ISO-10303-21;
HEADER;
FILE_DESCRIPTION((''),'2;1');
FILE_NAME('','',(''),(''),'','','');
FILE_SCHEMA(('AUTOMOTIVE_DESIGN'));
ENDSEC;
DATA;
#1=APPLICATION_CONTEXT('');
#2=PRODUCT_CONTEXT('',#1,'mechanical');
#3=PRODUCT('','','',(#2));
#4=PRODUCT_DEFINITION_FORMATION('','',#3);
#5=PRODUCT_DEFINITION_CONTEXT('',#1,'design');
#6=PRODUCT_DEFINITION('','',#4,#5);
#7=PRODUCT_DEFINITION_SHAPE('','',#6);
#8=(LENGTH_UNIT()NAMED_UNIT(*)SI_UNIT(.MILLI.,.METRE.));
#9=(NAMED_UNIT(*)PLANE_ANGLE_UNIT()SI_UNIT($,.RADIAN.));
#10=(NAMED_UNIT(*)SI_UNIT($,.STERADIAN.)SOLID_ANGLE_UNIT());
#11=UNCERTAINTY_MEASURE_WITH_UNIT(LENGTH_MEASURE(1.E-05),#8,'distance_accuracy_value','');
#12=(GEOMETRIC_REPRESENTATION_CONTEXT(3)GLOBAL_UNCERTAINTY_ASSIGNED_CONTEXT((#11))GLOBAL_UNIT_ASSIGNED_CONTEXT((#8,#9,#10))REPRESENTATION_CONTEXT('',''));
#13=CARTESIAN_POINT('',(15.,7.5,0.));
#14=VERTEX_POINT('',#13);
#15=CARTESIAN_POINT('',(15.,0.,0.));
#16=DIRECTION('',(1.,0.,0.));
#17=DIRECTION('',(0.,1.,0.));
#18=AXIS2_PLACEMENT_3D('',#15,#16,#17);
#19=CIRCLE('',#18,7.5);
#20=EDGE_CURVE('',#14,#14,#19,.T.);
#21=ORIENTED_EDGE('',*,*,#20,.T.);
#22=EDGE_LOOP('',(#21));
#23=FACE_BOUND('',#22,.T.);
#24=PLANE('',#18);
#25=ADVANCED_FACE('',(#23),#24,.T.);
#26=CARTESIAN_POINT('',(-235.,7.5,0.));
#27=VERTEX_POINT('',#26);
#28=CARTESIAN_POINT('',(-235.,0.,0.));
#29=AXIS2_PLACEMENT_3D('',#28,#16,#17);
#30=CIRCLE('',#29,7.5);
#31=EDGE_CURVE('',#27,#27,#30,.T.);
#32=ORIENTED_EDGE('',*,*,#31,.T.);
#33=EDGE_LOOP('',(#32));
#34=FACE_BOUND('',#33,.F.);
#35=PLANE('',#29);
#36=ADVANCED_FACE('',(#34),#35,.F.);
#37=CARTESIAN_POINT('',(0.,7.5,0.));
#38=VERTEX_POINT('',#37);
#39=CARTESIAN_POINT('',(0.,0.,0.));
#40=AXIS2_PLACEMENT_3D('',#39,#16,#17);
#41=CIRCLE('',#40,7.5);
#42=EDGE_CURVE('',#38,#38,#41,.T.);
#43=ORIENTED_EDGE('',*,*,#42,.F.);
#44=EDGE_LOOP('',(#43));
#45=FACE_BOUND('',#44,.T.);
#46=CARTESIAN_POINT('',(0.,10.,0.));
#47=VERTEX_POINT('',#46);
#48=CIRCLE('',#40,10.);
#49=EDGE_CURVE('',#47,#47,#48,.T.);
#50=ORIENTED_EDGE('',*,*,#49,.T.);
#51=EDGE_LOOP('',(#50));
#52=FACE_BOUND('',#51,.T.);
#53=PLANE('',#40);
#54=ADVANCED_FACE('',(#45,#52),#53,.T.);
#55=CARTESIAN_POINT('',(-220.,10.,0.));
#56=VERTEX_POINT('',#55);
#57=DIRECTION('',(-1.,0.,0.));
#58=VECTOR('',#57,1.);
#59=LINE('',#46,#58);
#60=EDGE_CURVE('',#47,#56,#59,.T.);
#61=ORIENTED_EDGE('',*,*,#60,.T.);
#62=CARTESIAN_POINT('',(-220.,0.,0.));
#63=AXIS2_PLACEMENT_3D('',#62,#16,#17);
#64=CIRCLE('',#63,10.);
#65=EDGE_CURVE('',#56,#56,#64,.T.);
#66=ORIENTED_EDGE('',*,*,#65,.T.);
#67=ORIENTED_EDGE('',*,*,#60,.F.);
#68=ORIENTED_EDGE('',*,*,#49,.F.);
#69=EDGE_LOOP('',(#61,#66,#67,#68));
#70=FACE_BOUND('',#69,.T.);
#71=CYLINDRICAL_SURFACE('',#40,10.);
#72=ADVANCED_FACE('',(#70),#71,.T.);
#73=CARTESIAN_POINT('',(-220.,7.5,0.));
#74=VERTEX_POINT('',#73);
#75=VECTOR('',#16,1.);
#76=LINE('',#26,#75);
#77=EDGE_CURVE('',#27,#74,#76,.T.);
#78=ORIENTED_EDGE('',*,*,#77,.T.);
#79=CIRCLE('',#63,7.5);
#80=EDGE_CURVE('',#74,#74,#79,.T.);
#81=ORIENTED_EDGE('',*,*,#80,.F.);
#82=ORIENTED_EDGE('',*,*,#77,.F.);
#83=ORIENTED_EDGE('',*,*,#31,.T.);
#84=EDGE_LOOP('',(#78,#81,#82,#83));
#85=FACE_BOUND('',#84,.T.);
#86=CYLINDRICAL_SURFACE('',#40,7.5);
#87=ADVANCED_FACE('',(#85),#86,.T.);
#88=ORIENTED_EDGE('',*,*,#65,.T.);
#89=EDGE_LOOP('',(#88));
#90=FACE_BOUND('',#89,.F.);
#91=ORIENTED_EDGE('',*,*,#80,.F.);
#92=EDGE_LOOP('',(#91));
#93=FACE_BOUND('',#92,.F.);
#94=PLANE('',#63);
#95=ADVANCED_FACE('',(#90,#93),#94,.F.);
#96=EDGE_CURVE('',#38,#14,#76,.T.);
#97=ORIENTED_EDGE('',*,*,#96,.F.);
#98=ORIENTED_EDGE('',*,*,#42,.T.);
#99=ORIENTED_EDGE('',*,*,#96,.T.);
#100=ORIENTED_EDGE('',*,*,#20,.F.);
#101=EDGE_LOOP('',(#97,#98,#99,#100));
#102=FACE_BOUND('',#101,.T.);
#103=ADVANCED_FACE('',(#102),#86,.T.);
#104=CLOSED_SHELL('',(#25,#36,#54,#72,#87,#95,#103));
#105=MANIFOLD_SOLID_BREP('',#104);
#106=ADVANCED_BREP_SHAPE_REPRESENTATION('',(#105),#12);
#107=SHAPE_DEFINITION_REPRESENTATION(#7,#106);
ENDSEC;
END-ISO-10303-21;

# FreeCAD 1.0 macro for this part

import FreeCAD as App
import Part
import Sketcher

V = App.Vector
Q = App.Units.Quantity

doc = App.newDocument("Part")
body = doc.addObject("PartDesign::Body", "Body")

# Sketch on YZ plane
sketch1 = body.newObject("Sketcher::SketchObject", "Sketch")
sketch1.AttachmentSupport = (doc.getObject("YZ_Plane"), [""])
sketch1.MapMode = "FlatFace"
sketch1.addGeometry(Part.Circle(V(0, 0, 0), V(0, 0, 1), 8), False)
sketch1.addConstraint([
    Sketcher.Constraint("Coincident", 0, 3, -1, 1),
    Sketcher.Constraint("Diameter", 0, Q("15 mm")),
])
pad1 = body.newObject("PartDesign::Pad", "Pad")
pad1.Profile = sketch1
pad1.Type = "TwoLengths"
pad1.Length = 15
pad1.Length2 = 235

# Sketch on YZ plane
sketch2 = body.newObject("Sketcher::SketchObject", "Sketch001")
sketch2.AttachmentSupport = (doc.getObject("YZ_Plane"), [""])
sketch2.MapMode = "FlatFace"
sketch2.addGeometry([
    Part.Circle(V(0, 0, 0), V(0, 0, 1), 10),
    Part.Circle(V(0, 0, 0), V(0, 0, 1), 8),
], False)
sketch2.addConstraint([
    Sketcher.Constraint("Coincident", 0, 3, -1, 1),
    Sketcher.Constraint("Coincident", 1, 3, -1, 1),
    Sketcher.Constraint("Diameter", 0, Q("20 mm")),
    Sketcher.Constraint("Diameter", 1, Q("15 mm")),
])
pad2 = body.newObject("PartDesign::Pad", "Pad001")
pad2.Profile = sketch2
pad2.Length = 220
pad2.Reversed = True

doc.recompute()
